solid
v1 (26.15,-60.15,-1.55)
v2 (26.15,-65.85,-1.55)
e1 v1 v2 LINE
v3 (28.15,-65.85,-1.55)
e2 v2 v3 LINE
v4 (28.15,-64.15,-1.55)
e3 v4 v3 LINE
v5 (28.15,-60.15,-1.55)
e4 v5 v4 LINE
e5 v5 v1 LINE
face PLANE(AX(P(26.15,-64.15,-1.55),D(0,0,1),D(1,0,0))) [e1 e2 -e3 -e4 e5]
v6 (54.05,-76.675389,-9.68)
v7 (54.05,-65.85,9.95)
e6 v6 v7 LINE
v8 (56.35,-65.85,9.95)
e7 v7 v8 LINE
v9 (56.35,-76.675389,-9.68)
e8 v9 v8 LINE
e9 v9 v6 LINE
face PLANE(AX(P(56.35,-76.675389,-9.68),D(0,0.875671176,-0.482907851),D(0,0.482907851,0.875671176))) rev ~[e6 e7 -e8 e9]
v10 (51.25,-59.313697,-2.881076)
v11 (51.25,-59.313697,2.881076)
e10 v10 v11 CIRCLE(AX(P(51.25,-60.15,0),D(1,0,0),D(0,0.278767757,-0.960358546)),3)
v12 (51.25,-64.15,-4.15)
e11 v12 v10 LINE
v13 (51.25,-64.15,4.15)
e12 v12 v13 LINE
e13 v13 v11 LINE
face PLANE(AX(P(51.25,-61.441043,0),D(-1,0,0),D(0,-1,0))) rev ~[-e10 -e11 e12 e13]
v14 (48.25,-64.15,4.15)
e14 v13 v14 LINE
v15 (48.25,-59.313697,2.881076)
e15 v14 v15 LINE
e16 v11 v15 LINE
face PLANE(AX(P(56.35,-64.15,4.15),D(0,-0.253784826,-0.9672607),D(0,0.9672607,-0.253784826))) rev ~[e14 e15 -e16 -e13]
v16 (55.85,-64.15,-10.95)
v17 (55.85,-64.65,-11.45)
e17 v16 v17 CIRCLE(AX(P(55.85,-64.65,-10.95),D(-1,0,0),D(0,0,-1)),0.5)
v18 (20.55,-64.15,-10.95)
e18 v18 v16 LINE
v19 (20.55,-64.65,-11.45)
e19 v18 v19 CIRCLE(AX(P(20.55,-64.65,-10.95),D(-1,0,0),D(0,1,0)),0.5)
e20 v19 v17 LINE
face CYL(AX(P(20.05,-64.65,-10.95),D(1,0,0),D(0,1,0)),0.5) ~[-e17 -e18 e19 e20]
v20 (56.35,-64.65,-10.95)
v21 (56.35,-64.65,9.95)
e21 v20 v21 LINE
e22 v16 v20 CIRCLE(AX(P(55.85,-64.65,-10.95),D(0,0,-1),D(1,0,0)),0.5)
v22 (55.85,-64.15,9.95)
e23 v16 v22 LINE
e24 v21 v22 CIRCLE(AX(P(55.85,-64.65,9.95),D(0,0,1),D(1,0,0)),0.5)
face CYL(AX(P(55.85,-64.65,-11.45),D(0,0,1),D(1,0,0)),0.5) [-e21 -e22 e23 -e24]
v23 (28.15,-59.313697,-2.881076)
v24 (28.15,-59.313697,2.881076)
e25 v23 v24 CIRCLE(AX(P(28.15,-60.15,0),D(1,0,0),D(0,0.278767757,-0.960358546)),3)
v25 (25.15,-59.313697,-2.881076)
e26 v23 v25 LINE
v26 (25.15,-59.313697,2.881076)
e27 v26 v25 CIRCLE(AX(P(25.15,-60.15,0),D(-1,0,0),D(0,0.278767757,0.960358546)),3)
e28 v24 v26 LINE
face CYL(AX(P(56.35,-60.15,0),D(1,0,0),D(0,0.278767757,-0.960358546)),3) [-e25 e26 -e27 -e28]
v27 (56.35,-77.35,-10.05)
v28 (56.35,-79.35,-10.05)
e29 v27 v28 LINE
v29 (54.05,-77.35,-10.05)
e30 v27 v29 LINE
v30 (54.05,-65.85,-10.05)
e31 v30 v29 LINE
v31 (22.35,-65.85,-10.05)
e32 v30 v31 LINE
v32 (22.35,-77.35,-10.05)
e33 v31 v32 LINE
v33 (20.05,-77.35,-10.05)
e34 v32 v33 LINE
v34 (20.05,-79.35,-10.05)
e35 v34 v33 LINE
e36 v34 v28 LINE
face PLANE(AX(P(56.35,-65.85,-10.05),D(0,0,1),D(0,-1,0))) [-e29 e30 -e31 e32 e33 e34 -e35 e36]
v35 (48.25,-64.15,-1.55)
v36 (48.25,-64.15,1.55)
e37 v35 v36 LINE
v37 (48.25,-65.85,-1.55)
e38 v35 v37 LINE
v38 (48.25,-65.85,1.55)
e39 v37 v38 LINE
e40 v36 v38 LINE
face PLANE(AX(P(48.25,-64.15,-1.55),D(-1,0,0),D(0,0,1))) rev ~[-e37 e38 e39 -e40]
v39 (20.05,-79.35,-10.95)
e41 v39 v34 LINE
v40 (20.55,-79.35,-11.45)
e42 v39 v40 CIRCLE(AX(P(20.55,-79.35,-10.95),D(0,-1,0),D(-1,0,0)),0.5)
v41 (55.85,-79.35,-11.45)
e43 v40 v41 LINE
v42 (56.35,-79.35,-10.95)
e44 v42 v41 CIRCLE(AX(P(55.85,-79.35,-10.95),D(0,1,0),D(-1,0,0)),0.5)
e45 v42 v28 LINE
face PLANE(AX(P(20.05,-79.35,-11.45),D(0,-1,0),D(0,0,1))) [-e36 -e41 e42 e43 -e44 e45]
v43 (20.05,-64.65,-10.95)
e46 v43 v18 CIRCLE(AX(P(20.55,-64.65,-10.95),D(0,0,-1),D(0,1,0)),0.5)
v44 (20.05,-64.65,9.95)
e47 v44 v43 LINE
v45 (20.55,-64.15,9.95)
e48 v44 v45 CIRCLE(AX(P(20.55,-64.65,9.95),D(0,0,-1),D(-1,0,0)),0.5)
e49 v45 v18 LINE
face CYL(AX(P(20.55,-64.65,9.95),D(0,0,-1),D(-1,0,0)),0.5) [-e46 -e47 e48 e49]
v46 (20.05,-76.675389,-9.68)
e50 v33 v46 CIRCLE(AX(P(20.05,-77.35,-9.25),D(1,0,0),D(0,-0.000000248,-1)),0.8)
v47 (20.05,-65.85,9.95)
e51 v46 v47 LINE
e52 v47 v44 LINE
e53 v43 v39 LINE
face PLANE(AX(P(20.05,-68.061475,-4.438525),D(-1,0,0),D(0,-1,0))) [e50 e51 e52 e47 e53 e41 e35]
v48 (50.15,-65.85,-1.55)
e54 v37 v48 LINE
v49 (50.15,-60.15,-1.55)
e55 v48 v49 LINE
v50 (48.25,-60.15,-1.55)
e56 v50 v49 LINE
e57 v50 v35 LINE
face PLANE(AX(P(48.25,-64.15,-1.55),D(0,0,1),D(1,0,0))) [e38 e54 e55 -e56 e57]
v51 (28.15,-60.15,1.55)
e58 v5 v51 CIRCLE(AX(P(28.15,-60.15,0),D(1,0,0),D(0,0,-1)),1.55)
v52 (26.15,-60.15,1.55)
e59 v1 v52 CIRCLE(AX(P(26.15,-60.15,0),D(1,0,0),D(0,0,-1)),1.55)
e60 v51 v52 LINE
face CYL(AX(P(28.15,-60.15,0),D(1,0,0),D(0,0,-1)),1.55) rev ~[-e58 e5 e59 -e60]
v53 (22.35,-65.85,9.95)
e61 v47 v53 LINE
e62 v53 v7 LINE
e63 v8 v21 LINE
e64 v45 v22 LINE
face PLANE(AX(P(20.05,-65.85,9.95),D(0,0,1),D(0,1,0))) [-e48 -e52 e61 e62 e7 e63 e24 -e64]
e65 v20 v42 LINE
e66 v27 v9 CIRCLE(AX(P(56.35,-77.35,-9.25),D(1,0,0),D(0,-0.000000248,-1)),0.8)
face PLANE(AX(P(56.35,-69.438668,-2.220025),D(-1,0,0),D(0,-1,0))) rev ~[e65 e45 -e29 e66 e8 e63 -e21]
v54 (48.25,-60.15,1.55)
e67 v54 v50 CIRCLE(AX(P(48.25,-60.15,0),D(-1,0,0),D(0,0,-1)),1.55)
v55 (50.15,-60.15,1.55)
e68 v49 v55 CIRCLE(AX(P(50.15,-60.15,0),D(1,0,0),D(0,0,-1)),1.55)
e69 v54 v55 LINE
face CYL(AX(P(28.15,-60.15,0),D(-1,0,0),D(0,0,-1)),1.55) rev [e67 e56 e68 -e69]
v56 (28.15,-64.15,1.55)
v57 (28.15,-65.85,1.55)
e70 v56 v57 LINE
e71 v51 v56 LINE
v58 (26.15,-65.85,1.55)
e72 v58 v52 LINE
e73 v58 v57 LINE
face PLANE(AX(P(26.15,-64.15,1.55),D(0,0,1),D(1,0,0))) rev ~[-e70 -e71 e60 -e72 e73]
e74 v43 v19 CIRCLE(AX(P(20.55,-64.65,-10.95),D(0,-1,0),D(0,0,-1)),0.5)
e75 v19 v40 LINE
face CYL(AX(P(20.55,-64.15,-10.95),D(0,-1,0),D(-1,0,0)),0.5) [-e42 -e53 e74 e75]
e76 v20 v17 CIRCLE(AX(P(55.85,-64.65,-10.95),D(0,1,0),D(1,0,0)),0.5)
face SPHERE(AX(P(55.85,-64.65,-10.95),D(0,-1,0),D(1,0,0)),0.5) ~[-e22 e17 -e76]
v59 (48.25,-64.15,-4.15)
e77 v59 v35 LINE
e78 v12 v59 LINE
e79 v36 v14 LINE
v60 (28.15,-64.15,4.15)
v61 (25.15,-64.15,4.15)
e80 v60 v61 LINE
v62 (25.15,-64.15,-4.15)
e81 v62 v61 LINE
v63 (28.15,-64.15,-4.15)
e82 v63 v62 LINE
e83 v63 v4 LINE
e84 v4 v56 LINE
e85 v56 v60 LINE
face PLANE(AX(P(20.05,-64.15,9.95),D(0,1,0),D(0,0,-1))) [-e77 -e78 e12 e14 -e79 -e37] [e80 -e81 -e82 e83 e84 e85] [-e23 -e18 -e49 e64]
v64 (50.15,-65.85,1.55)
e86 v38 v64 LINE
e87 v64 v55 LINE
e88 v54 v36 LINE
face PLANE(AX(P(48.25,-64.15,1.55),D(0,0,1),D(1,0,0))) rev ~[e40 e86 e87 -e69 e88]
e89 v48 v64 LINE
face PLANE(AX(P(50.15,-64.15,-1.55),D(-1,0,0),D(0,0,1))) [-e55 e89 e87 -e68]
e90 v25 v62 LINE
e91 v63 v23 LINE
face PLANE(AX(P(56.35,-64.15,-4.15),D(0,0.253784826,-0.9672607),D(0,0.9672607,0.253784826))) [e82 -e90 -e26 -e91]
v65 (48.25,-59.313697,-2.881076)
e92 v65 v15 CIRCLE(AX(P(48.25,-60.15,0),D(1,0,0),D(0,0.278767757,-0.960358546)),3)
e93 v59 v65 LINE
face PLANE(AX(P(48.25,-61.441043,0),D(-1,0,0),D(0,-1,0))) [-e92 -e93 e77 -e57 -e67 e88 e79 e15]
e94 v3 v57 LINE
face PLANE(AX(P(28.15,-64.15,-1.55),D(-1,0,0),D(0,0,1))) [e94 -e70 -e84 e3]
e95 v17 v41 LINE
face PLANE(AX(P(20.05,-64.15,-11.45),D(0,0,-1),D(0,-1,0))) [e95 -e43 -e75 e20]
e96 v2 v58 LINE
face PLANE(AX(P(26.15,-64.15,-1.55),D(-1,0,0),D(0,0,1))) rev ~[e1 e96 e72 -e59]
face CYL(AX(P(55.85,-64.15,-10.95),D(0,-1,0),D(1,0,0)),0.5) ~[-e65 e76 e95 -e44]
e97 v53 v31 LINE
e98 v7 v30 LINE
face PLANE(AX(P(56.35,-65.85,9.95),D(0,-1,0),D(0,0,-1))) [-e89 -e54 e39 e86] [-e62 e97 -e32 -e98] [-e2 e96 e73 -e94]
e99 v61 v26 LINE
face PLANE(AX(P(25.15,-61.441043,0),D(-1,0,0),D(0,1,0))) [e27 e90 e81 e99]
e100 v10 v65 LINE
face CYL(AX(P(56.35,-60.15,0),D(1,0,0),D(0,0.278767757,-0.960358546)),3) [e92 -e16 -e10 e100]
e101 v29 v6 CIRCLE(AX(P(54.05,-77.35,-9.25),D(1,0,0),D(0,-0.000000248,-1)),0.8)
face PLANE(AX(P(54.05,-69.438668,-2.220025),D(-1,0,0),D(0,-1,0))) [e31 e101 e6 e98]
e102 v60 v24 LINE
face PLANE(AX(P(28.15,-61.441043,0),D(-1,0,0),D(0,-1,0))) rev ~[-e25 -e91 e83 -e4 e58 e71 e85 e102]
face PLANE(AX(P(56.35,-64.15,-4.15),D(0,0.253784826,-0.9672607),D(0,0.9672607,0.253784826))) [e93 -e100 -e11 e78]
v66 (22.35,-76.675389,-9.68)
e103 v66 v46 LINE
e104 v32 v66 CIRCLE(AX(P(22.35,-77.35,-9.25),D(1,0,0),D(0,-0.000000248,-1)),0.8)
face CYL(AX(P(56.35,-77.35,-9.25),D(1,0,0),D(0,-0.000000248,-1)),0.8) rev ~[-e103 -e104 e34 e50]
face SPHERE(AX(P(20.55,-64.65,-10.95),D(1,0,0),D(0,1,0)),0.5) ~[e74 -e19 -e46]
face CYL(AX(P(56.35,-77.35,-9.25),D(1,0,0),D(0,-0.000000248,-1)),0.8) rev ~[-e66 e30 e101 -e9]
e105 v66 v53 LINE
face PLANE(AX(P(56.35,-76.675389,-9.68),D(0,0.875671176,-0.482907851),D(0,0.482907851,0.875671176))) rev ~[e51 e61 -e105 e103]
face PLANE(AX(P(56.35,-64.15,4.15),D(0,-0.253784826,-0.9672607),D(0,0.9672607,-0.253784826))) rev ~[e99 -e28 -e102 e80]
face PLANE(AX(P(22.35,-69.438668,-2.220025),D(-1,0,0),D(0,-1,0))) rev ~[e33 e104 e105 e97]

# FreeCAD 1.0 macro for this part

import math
import FreeCAD as App
import Part
import Sketcher
Q = App.Units.Quantity


def edges_at(feature, points):
    """Names of the edges that pass closest to the given points."""
    edges = feature.Shape.Edges
    near = lambda p: min(range(len(edges)), key=lambda i: edges[i].distToShape(Part.Vertex(*p))[0])
    return sorted({f"Edge{near(p) + 1}" for p in points})


def add_polygon(sketch, points):
    """Adds a closed chain of lines whose ends are joined by coincident constraints."""
    first, n = sketch.GeometryCount, len(points)
    for a, b in zip(points, points[1:] + points[:1]):
        sketch.addGeometry(Part.LineSegment(App.Vector(*a, 0), App.Vector(*b, 0)), False)
    for i in range(n):
        sketch.addConstraint(Sketcher.Constraint("Coincident", first + i, 2, first + (i + 1) % n, 1))

doc = App.newDocument("Part")
params = doc.addObject("Spreadsheet::Sheet", "Params")
for row, (alias, value) in enumerate([
    ("sketch1_height", "20 mm"),
    ("sketch1_width", "15.2 mm"),
    ("sketch1_width2", "1.7 mm"),
    ("sketch1_height2", "1.4 mm"),
    ("pad1_length", "36.3 mm"),
    ("sketch2_radius", "3 mm"),
    ("sketch2_length", "4.999999 mm"),
    ("sketch2_height", "8.3 mm"),
    ("pad2_length", "36.3 mm"),
    ("sketch3_radius", "3 mm"),
    ("sketch3_length", "4.999999 mm"),
    ("sketch3_height", "8.3 mm"),
    ("pocket1_length", "28.2 mm"),
    ("sketch4_radius", "3 mm"),
    ("sketch4_length", "4.999999 mm"),
    ("sketch4_height", "8.3 mm"),
    ("pad3_length", "8.1 mm"),
    ("sketch5_radius", "3 mm"),
    ("sketch5_length", "4.999999 mm"),
    ("sketch5_height", "8.3 mm"),
    ("pocket2_length", "5.1 mm"),
    ("sketch6_radius", "3 mm"),
    ("sketch6_length", "4.999999 mm"),
    ("sketch6_height", "8.3 mm"),
    ("pocket3_length", "5.1 mm"),
    ("sketch7_width", "4 mm"),
    ("sketch7_radius", "1.55 mm"),
    ("pocket4_length", "2 mm"),
    ("sketch8_width", "4 mm"),
    ("sketch8_radius", "1.55 mm"),
    ("pocket5_length", "22 mm"),
    ("sketch9_height", "2 mm"),
    ("sketch9_width", "3.1 mm"),
    ("sketch9_height2", "1.9 mm"),
    ("pocket6_length", "1.7 mm"),
    ("sketch10_radius", "0.8 mm"),
    ("sketch10_height", "20 mm"),
    ("sketch10_width", "11.5 mm"),
    ("pad4_length", "36.3 mm"),
    ("sketch11_radius", "0.8 mm"),
    ("sketch11_height", "20 mm"),
    ("sketch11_width", "11.5 mm"),
    ("pocket7_length", "34 mm"),
    ("sketch12_radius", "0.8 mm"),
    ("sketch12_height", "20 mm"),
    ("sketch12_width", "11.5 mm"),
    ("pad5_length", "2.3 mm"),
    ("fillet_radius", "0.5 mm"),
], start=1):
    params.set(f"A{row}", alias)
    params.set(f"B{row}", "=" + value)
    params.setAlias(f"B{row}", alias)

body = doc.addObject("PartDesign::Body", "Body")

sketch1 = body.newObject("Sketcher::SketchObject", "Sketch")
sketch1.AttachmentSupport = (doc.getObject("XY_Plane"), [""])
sketch1.MapMode = "FlatFace"
add_polygon(sketch1, [(0, 1.4), (0, 0), (15.2, 0), (15.2, 21.4), (13.5, 21.4), (13.5, 1.4)])
sketch1.addConstraint([
    Sketcher.Constraint("Vertical", 0),
    Sketcher.Constraint("Horizontal", 1),
    Sketcher.Constraint("Vertical", 2),
    Sketcher.Constraint("Horizontal", 3),
    Sketcher.Constraint("Vertical", 4),
    Sketcher.Constraint("Horizontal", 5),
    Sketcher.Constraint("Coincident", 0, 2, -1, 1),
    Sketcher.Constraint("DistanceY", 4, 2, 4, 1, Q("20 mm")),
    Sketcher.Constraint("DistanceX", 1, 1, 1, 2, Q("15.2 mm")),
    Sketcher.Constraint("DistanceX", 3, 2, 3, 1, Q("1.7 mm")),
    Sketcher.Constraint("DistanceY", 0, 2, 0, 1, Q("1.4 mm")),
])
sketch1.setExpression("Constraints[13]", "Params.sketch1_height")
sketch1.setExpression("Constraints[14]", "Params.sketch1_width")
sketch1.setExpression("Constraints[15]", "Params.sketch1_width2")
sketch1.setExpression("Constraints[16]", "Params.sketch1_height2")
pad1 = body.newObject("PartDesign::Pad", "Pad")
pad1.Profile = sketch1
pad1.setExpression("Length", "Params.pad1_length")

sketch2 = body.newObject("Sketcher::SketchObject", "Sketch001")
sketch2.AttachmentSupport = (doc.getObject("XY_Plane"), [""])
sketch2.MapMode = "FlatFace"
sketch2.AttachmentOffset = App.Placement(App.Vector(0, 0, 36.3), App.Rotation())
sketch2.addGeometry([
    Part.LineSegment(App.Vector(20, 14.3, 0), App.Vector(15.2, 15.6, 0)),
    Part.LineSegment(App.Vector(15.2, 15.6, 0), App.Vector(15.2, 7.3, 0)),
    Part.LineSegment(App.Vector(15.2, 7.3, 0), App.Vector(20, 8.6, 0)),
    Part.ArcOfCircle(Part.Circle(App.Vector(19.2, 11.4, 0), App.Vector(0, 0, 1), 3), math.radians(-74), math.radians(74)),
], False)
sketch2.addConstraint([
    Sketcher.Constraint("Coincident", 0, 2, 1, 1),
    Sketcher.Constraint("Coincident", 1, 2, 2, 1),
    Sketcher.Constraint("Coincident", 2, 2, 3, 1),
    Sketcher.Constraint("Coincident", 3, 2, 0, 1),
    Sketcher.Constraint("Vertical", 1),
    Sketcher.Constraint("Vertical", 2, 2, 3, 2),
    Sketcher.Constraint("Equal", 0, 2),
    Sketcher.Constraint("Radius", 3, Q("3 mm")),
    Sketcher.Constraint("Distance", 0, Q("4.999999 mm")),
    Sketcher.Constraint("DistanceY", 1, 2, 1, 1, Q("8.3 mm")),
    Sketcher.Constraint("DistanceX", 0, 2, 3, 3, Q("4 mm")),
    Sketcher.Constraint("DistanceX", -1, 1, 3, 3, Q("19.2 mm")),
    Sketcher.Constraint("DistanceY", -1, 1, 0, 2, Q("15.6 mm")),
])
sketch2.setExpression("Constraints[7]", "Params.sketch2_radius")
sketch2.setExpression("Constraints[8]", "Params.sketch2_length")
sketch2.setExpression("Constraints[9]", "Params.sketch2_height")
pad2 = body.newObject("PartDesign::Pad", "Pad001")
pad2.Profile = sketch2
pad2.setExpression("Length", "Params.pad2_length")
pad2.Reversed = True

sketch3 = body.newObject("Sketcher::SketchObject", "Sketch002")
sketch3.AttachmentSupport = (doc.getObject("XY_Plane"), [""])
sketch3.MapMode = "FlatFace"
sketch3.AttachmentOffset = App.Placement(App.Vector(0, 0, 36.3), App.Rotation())
sketch3.addGeometry([
    Part.LineSegment(App.Vector(20, 14.3, 0), App.Vector(15.2, 15.6, 0)),
    Part.LineSegment(App.Vector(15.2, 15.6, 0), App.Vector(15.2, 7.3, 0)),
    Part.LineSegment(App.Vector(15.2, 7.3, 0), App.Vector(20, 8.6, 0)),
    Part.ArcOfCircle(Part.Circle(App.Vector(19.2, 11.4, 0), App.Vector(0, 0, 1), 3), math.radians(-74), math.radians(74)),
], False)
sketch3.addConstraint([
    Sketcher.Constraint("Coincident", 0, 2, 1, 1),
    Sketcher.Constraint("Coincident", 1, 2, 2, 1),
    Sketcher.Constraint("Coincident", 2, 2, 3, 1),
    Sketcher.Constraint("Coincident", 3, 2, 0, 1),
    Sketcher.Constraint("Vertical", 1),
    Sketcher.Constraint("Vertical", 2, 2, 3, 2),
    Sketcher.Constraint("Equal", 0, 2),
    Sketcher.Constraint("Radius", 3, Q("3 mm")),
    Sketcher.Constraint("Distance", 0, Q("4.999999 mm")),
    Sketcher.Constraint("DistanceY", 1, 2, 1, 1, Q("8.3 mm")),
    Sketcher.Constraint("DistanceX", 0, 2, 3, 3, Q("4 mm")),
    Sketcher.Constraint("DistanceX", -1, 1, 3, 3, Q("19.2 mm")),
    Sketcher.Constraint("DistanceY", -1, 1, 0, 2, Q("15.6 mm")),
])
sketch3.setExpression("Constraints[7]", "Params.sketch3_radius")
sketch3.setExpression("Constraints[8]", "Params.sketch3_length")
sketch3.setExpression("Constraints[9]", "Params.sketch3_height")
pocket1 = body.newObject("PartDesign::Pocket", "Pocket")
pocket1.Profile = sketch3
pocket1.setExpression("Length", "Params.pocket1_length")

sketch4 = body.newObject("Sketcher::SketchObject", "Sketch003")
sketch4.AttachmentSupport = (doc.getObject("XY_Plane"), [""])
sketch4.MapMode = "FlatFace"
sketch4.AttachmentOffset = App.Placement(App.Vector(0, 0, 36.3), App.Rotation())
sketch4.addGeometry([
    Part.LineSegment(App.Vector(20, 14.3, 0), App.Vector(15.2, 15.6, 0)),
    Part.LineSegment(App.Vector(15.2, 15.6, 0), App.Vector(15.2, 7.3, 0)),
    Part.LineSegment(App.Vector(15.2, 7.3, 0), App.Vector(20, 8.6, 0)),
    Part.ArcOfCircle(Part.Circle(App.Vector(19.2, 11.4, 0), App.Vector(0, 0, 1), 3), math.radians(-74), math.radians(74)),
], False)
sketch4.addConstraint([
    Sketcher.Constraint("Coincident", 0, 2, 1, 1),
    Sketcher.Constraint("Coincident", 1, 2, 2, 1),
    Sketcher.Constraint("Coincident", 2, 2, 3, 1),
    Sketcher.Constraint("Coincident", 3, 2, 0, 1),
    Sketcher.Constraint("Vertical", 1),
    Sketcher.Constraint("Vertical", 2, 2, 3, 2),
    Sketcher.Constraint("Equal", 0, 2),
    Sketcher.Constraint("Radius", 3, Q("3 mm")),
    Sketcher.Constraint("Distance", 0, Q("4.999999 mm")),
    Sketcher.Constraint("DistanceY", 1, 2, 1, 1, Q("8.3 mm")),
    Sketcher.Constraint("DistanceX", 0, 2, 3, 3, Q("4 mm")),
    Sketcher.Constraint("DistanceX", -1, 1, 3, 3, Q("19.2 mm")),
    Sketcher.Constraint("DistanceY", -1, 1, 0, 2, Q("15.6 mm")),
])
sketch4.setExpression("Constraints[7]", "Params.sketch4_radius")
sketch4.setExpression("Constraints[8]", "Params.sketch4_length")
sketch4.setExpression("Constraints[9]", "Params.sketch4_height")
pad3 = body.newObject("PartDesign::Pad", "Pad002")
pad3.Profile = sketch4
pad3.setExpression("Length", "Params.pad3_length")
pad3.Reversed = True

sketch5 = body.newObject("Sketcher::SketchObject", "Sketch004")
sketch5.AttachmentSupport = (doc.getObject("XY_Plane"), [""])
sketch5.MapMode = "FlatFace"
sketch5.AttachmentOffset = App.Placement(App.Vector(0, 0, 36.3), App.Rotation())
sketch5.addGeometry([
    Part.LineSegment(App.Vector(20, 14.3, 0), App.Vector(15.2, 15.6, 0)),
    Part.LineSegment(App.Vector(15.2, 15.6, 0), App.Vector(15.2, 7.3, 0)),
    Part.LineSegment(App.Vector(15.2, 7.3, 0), App.Vector(20, 8.6, 0)),
    Part.ArcOfCircle(Part.Circle(App.Vector(19.2, 11.4, 0), App.Vector(0, 0, 1), 3), math.radians(-74), math.radians(74)),
], False)
sketch5.addConstraint([
    Sketcher.Constraint("Coincident", 0, 2, 1, 1),
    Sketcher.Constraint("Coincident", 1, 2, 2, 1),
    Sketcher.Constraint("Coincident", 2, 2, 3, 1),
    Sketcher.Constraint("Coincident", 3, 2, 0, 1),
    Sketcher.Constraint("Vertical", 1),
    Sketcher.Constraint("Vertical", 2, 2, 3, 2),
    Sketcher.Constraint("Equal", 0, 2),
    Sketcher.Constraint("Radius", 3, Q("3 mm")),
    Sketcher.Constraint("Distance", 0, Q("4.999999 mm")),
    Sketcher.Constraint("DistanceY", 1, 2, 1, 1, Q("8.3 mm")),
    Sketcher.Constraint("DistanceX", 0, 2, 3, 3, Q("4 mm")),
    Sketcher.Constraint("DistanceX", -1, 1, 3, 3, Q("19.2 mm")),
    Sketcher.Constraint("DistanceY", -1, 1, 0, 2, Q("15.6 mm")),
])
sketch5.setExpression("Constraints[7]", "Params.sketch5_radius")
sketch5.setExpression("Constraints[8]", "Params.sketch5_length")
sketch5.setExpression("Constraints[9]", "Params.sketch5_height")
pocket2 = body.newObject("PartDesign::Pocket", "Pocket001")
pocket2.Profile = sketch5
pocket2.setExpression("Length", "Params.pocket2_length")

sketch6 = body.newObject("Sketcher::SketchObject", "Sketch005")
sketch6.AttachmentSupport = (doc.getObject("XY_Plane"), [""])
sketch6.MapMode = "FlatFace"
sketch6.addGeometry([
    Part.LineSegment(App.Vector(20, 8.6, 0), App.Vector(15.2, 7.3, 0)),
    Part.LineSegment(App.Vector(15.2, 7.3, 0), App.Vector(15.2, 15.6, 0)),
    Part.LineSegment(App.Vector(15.2, 15.6, 0), App.Vector(20, 14.3, 0)),
    Part.ArcOfCircle(Part.Circle(App.Vector(19.2, 11.4, 0), App.Vector(0, 0, 1), 3), math.radians(-74), math.radians(74)),
], False)
sketch6.addConstraint([
    Sketcher.Constraint("Coincident", 0, 2, 1, 1),
    Sketcher.Constraint("Coincident", 1, 2, 2, 1),
    Sketcher.Constraint("Coincident", 2, 2, 3, 2),
    Sketcher.Constraint("Coincident", 3, 1, 0, 1),
    Sketcher.Constraint("Vertical", 1),
    Sketcher.Constraint("Vertical", 2, 2, 3, 1),
    Sketcher.Constraint("Equal", 0, 2),
    Sketcher.Constraint("Radius", 3, Q("3 mm")),
    Sketcher.Constraint("Distance", 0, Q("4.999999 mm")),
    Sketcher.Constraint("DistanceY", 1, 1, 1, 2, Q("8.3 mm")),
    Sketcher.Constraint("DistanceX", 0, 2, 3, 3, Q("4 mm")),
    Sketcher.Constraint("DistanceX", -1, 1, 3, 3, Q("19.2 mm")),
    Sketcher.Constraint("DistanceY", -1, 1, 0, 2, Q("7.3 mm")),
])
sketch6.setExpression("Constraints[7]", "Params.sketch6_radius")
sketch6.setExpression("Constraints[8]", "Params.sketch6_length")
sketch6.setExpression("Constraints[9]", "Params.sketch6_height")
pocket3 = body.newObject("PartDesign::Pocket", "Pocket002")
pocket3.Profile = sketch6
pocket3.setExpression("Length", "Params.pocket3_length")
pocket3.Reversed = True

sketch7 = body.newObject("Sketcher::SketchObject", "Sketch006")
sketch7.AttachmentSupport = (doc.getObject("XY_Plane"), [""])
sketch7.MapMode = "FlatFace"
sketch7.AttachmentOffset = App.Placement(App.Vector(0, 0, 8.1), App.Rotation())
sketch7.addGeometry([
    Part.ArcOfCircle(Part.Circle(App.Vector(19.2, 11.4, 0), App.Vector(0, 0, 1), 1.6), math.radians(-90), math.radians(90)),
    Part.LineSegment(App.Vector(19.2, 13, 0), App.Vector(15.2, 13, 0)),
    Part.LineSegment(App.Vector(15.2, 13, 0), App.Vector(15.2, 9.9, 0)),
    Part.LineSegment(App.Vector(15.2, 9.9, 0), App.Vector(19.2, 9.9, 0)),
], False)
sketch7.addConstraint([
    Sketcher.Constraint("Tangent", 0, 2, 1, 1),
    Sketcher.Constraint("Coincident", 1, 2, 2, 1),
    Sketcher.Constraint("Coincident", 2, 2, 3, 1),
    Sketcher.Constraint("Tangent", 3, 2, 0, 1),
    Sketcher.Constraint("Horizontal", 1),
    Sketcher.Constraint("Vertical", 2),
    Sketcher.Constraint("Horizontal", 3),
    Sketcher.Constraint("DistanceX", 1, 2, 1, 1, Q("4 mm")),
    Sketcher.Constraint("Radius", 0, Q("1.55 mm")),
    Sketcher.Constraint("DistanceY", -1, 1, 0, 2, Q("13 mm")),
    Sketcher.Constraint("DistanceX", -1, 1, 0, 3, Q("19.2 mm")),
])
sketch7.setExpression("Constraints[7]", "Params.sketch7_width")
sketch7.setExpression("Constraints[8]", "Params.sketch7_radius")
pocket4 = body.newObject("PartDesign::Pocket", "Pocket003")
pocket4.Profile = sketch7
pocket4.setExpression("Length", "Params.pocket4_length")

sketch8 = body.newObject("Sketcher::SketchObject", "Sketch007")
sketch8.AttachmentSupport = (doc.getObject("XY_Plane"), [""])
sketch8.MapMode = "FlatFace"
sketch8.AttachmentOffset = App.Placement(App.Vector(0, 0, 8.1), App.Rotation())
sketch8.addGeometry([
    Part.ArcOfCircle(Part.Circle(App.Vector(19.2, 11.4, 0), App.Vector(0, 0, 1), 1.6), math.radians(-90), math.radians(90)),
    Part.LineSegment(App.Vector(19.2, 13, 0), App.Vector(15.2, 13, 0)),
    Part.LineSegment(App.Vector(15.2, 13, 0), App.Vector(15.2, 9.9, 0)),
    Part.LineSegment(App.Vector(15.2, 9.9, 0), App.Vector(19.2, 9.9, 0)),
], False)
sketch8.addConstraint([
    Sketcher.Constraint("Tangent", 0, 2, 1, 1),
    Sketcher.Constraint("Coincident", 1, 2, 2, 1),
    Sketcher.Constraint("Coincident", 2, 2, 3, 1),
    Sketcher.Constraint("Tangent", 3, 2, 0, 1),
    Sketcher.Constraint("Horizontal", 1),
    Sketcher.Constraint("Vertical", 2),
    Sketcher.Constraint("Horizontal", 3),
    Sketcher.Constraint("DistanceX", 1, 2, 1, 1, Q("4 mm")),
    Sketcher.Constraint("Radius", 0, Q("1.55 mm")),
    Sketcher.Constraint("DistanceY", -1, 1, 0, 2, Q("13 mm")),
    Sketcher.Constraint("DistanceX", -1, 1, 0, 3, Q("19.2 mm")),
])
sketch8.setExpression("Constraints[7]", "Params.sketch8_width")
sketch8.setExpression("Constraints[8]", "Params.sketch8_radius")
pocket5 = body.newObject("PartDesign::Pocket", "Pocket004")
pocket5.Profile = sketch8
pocket5.setExpression("Length", "Params.pocket5_length")
pocket5.Reversed = True

sketch9 = body.newObject("Sketcher::SketchObject", "Sketch008")
sketch9.AttachmentSupport = (doc.getObject("YZ_Plane"), [""])
sketch9.MapMode = "FlatFace"
sketch9.AttachmentOffset = App.Placement(App.Vector(0, 0, 15.2), App.Rotation())
add_polygon(sketch9, [(9.9, 30.1), (9.9, 28.2), (13, 28.2), (13, 30.1)])
add_polygon(sketch9, [(9.9, 8.1), (9.9, 6.1), (13, 6.1), (13, 8.1)])
sketch9.addConstraint([
    Sketcher.Constraint("Vertical", 0),
    Sketcher.Constraint("Horizontal", 1),
    Sketcher.Constraint("Vertical", 2),
    Sketcher.Constraint("Horizontal", 3),
    Sketcher.Constraint("Vertical", 4),
    Sketcher.Constraint("Horizontal", 5),
    Sketcher.Constraint("Vertical", 6),
    Sketcher.Constraint("Horizontal", 7),
    Sketcher.Constraint("Vertical", 3, 2, 4, 2),
    Sketcher.Constraint("Vertical", 2, 2, 5, 2),
    Sketcher.Constraint("DistanceY", 4, 2, 4, 1, Q("2 mm")),
    Sketcher.Constraint("DistanceX", 1, 1, 1, 2, Q("3.1 mm")),
    Sketcher.Constraint("DistanceY", 0, 2, 0, 1, Q("1.9 mm")),
    Sketcher.Constraint("DistanceX", -1, 1, 1, 2, Q("13 mm")),
    Sketcher.Constraint("DistanceY", 4, 2, 3, 2, Q("24 mm")),
    Sketcher.Constraint("DistanceY", -1, 1, 0, 2, Q("28.2 mm")),
])
sketch9.setExpression("Constraints[18]", "Params.sketch9_height")
sketch9.setExpression("Constraints[19]", "Params.sketch9_width")
sketch9.setExpression("Constraints[20]", "Params.sketch9_height2")
pocket6 = body.newObject("PartDesign::Pocket", "Pocket005")
pocket6.Profile = sketch9
pocket6.setExpression("Length", "Params.pocket6_length")

sketch10 = body.newObject("Sketcher::SketchObject", "Sketch009")
sketch10.AttachmentSupport = (doc.getObject("XY_Plane"), [""])
sketch10.MapMode = "FlatFace"
sketch10.AttachmentOffset = App.Placement(App.Vector(0, 0, 36.3), App.Rotation())
sketch10.addGeometry([
    Part.LineSegment(App.Vector(13.5, 1.4, 0), App.Vector(13.5, 21.4, 0)),
    Part.LineSegment(App.Vector(13.5, 21.4, 0), App.Vector(2.7, 1.8, 0)),
    Part.ArcOfCircle(Part.Circle(App.Vector(2, 2.2, 0), App.Vector(0, 0, 1), 0.8), math.radians(-90), math.radians(-33)),
    Part.LineSegment(App.Vector(2, 1.4, 0), App.Vector(13.5, 1.4, 0)),
], False)
sketch10.addConstraint([
    Sketcher.Constraint("Coincident", 0, 2, 1, 1),
    Sketcher.Constraint("Coincident", 1, 2, 2, 2),
    Sketcher.Constraint("Tangent", 2, 1, 3, 1),
    Sketcher.Constraint("Coincident", 3, 2, 0, 1),
    Sketcher.Constraint("Vertical", 0),
    Sketcher.Constraint("Horizontal", 3),
    Sketcher.Constraint("Radius", 2, Q("0.8 mm")),
    Sketcher.Constraint("DistanceY", 0, 1, 0, 2, Q("20 mm")),
    Sketcher.Constraint("DistanceX", 3, 1, 3, 2, Q("11.5 mm")),
    Sketcher.Constraint("DistanceX", -1, 1, 2, 3, Q("2 mm")),
    Sketcher.Constraint("DistanceY", -1, 1, 2, 3, Q("2.2 mm")),
    Sketcher.Constraint("DistanceY", -1, 1, 1, 2, Q("1.77 mm")),
])
sketch10.setExpression("Constraints[6]", "Params.sketch10_radius")
sketch10.setExpression("Constraints[7]", "Params.sketch10_height")
sketch10.setExpression("Constraints[8]", "Params.sketch10_width")
pad4 = body.newObject("PartDesign::Pad", "Pad003")
pad4.Profile = sketch10
pad4.setExpression("Length", "Params.pad4_length")
pad4.Reversed = True

sketch11 = body.newObject("Sketcher::SketchObject", "Sketch010")
sketch11.AttachmentSupport = (doc.getObject("XY_Plane"), [""])
sketch11.MapMode = "FlatFace"
sketch11.AttachmentOffset = App.Placement(App.Vector(0, 0, 36.3), App.Rotation())
sketch11.addGeometry([
    Part.LineSegment(App.Vector(13.5, 1.4, 0), App.Vector(13.5, 21.4, 0)),
    Part.LineSegment(App.Vector(13.5, 21.4, 0), App.Vector(2.7, 1.8, 0)),
    Part.ArcOfCircle(Part.Circle(App.Vector(2, 2.2, 0), App.Vector(0, 0, 1), 0.8), math.radians(-90), math.radians(-33)),
    Part.LineSegment(App.Vector(2, 1.4, 0), App.Vector(13.5, 1.4, 0)),
], False)
sketch11.addConstraint([
    Sketcher.Constraint("Coincident", 0, 2, 1, 1),
    Sketcher.Constraint("Coincident", 1, 2, 2, 2),
    Sketcher.Constraint("Tangent", 2, 1, 3, 1),
    Sketcher.Constraint("Coincident", 3, 2, 0, 1),
    Sketcher.Constraint("Vertical", 0),
    Sketcher.Constraint("Horizontal", 3),
    Sketcher.Constraint("Radius", 2, Q("0.8 mm")),
    Sketcher.Constraint("DistanceY", 0, 1, 0, 2, Q("20 mm")),
    Sketcher.Constraint("DistanceX", 3, 1, 3, 2, Q("11.5 mm")),
    Sketcher.Constraint("DistanceX", -1, 1, 2, 3, Q("2 mm")),
    Sketcher.Constraint("DistanceY", -1, 1, 2, 3, Q("2.2 mm")),
    Sketcher.Constraint("DistanceY", -1, 1, 1, 2, Q("1.77 mm")),
])
sketch11.setExpression("Constraints[6]", "Params.sketch11_radius")
sketch11.setExpression("Constraints[7]", "Params.sketch11_height")
sketch11.setExpression("Constraints[8]", "Params.sketch11_width")
pocket7 = body.newObject("PartDesign::Pocket", "Pocket006")
pocket7.Profile = sketch11
pocket7.setExpression("Length", "Params.pocket7_length")

sketch12 = body.newObject("Sketcher::SketchObject", "Sketch011")
sketch12.AttachmentSupport = (doc.getObject("XY_Plane"), [""])
sketch12.MapMode = "FlatFace"
sketch12.AttachmentOffset = App.Placement(App.Vector(0, 0, 36.3), App.Rotation())
sketch12.addGeometry([
    Part.LineSegment(App.Vector(13.5, 1.4, 0), App.Vector(13.5, 21.4, 0)),
    Part.LineSegment(App.Vector(13.5, 21.4, 0), App.Vector(2.7, 1.8, 0)),
    Part.ArcOfCircle(Part.Circle(App.Vector(2, 2.2, 0), App.Vector(0, 0, 1), 0.8), math.radians(-90), math.radians(-33)),
    Part.LineSegment(App.Vector(2, 1.4, 0), App.Vector(13.5, 1.4, 0)),
], False)
sketch12.addConstraint([
    Sketcher.Constraint("Coincident", 0, 2, 1, 1),
    Sketcher.Constraint("Coincident", 1, 2, 2, 2),
    Sketcher.Constraint("Tangent", 2, 1, 3, 1),
    Sketcher.Constraint("Coincident", 3, 2, 0, 1),
    Sketcher.Constraint("Vertical", 0),
    Sketcher.Constraint("Horizontal", 3),
    Sketcher.Constraint("Radius", 2, Q("0.8 mm")),
    Sketcher.Constraint("DistanceY", 0, 1, 0, 2, Q("20 mm")),
    Sketcher.Constraint("DistanceX", 3, 1, 3, 2, Q("11.5 mm")),
    Sketcher.Constraint("DistanceX", -1, 1, 2, 3, Q("2 mm")),
    Sketcher.Constraint("DistanceY", -1, 1, 2, 3, Q("2.2 mm")),
    Sketcher.Constraint("DistanceY", -1, 1, 1, 2, Q("1.77 mm")),
])
sketch12.setExpression("Constraints[6]", "Params.sketch12_radius")
sketch12.setExpression("Constraints[7]", "Params.sketch12_height")
sketch12.setExpression("Constraints[8]", "Params.sketch12_width")
pad5 = body.newObject("PartDesign::Pad", "Pad004")
pad5.Profile = sketch12
pad5.setExpression("Length", "Params.pad5_length")
pad5.Reversed = True
doc.recompute()

fillet = body.newObject("PartDesign::Fillet", "Fillet")
fillet.Base = (pad5, edges_at(pad5, [
    (7.6, 0, 36.3),
    (15.2, 10.7, 36.3),
    (15.2, 0, 18.15),
    (15.2, 10.7, 0),
    (7.6, 0, 0),
]))
fillet.setExpression("Radius", "Params.fillet_radius")
body2 = doc.addObject("PartDesign::Body", "Body001")
doc.recompute()

body.Placement = App.Placement(App.Vector(0, 0, 0), App.Rotation(App.Vector(1, 0, 0), 90))
boolean = body2.newObject("PartDesign::Boolean", "Boolean")
boolean.Type = "Fuse"
boolean.addObjects([body])
body3 = doc.addObject("PartDesign::Body", "Body002")
doc.recompute()

body2.Placement = App.Placement(App.Vector(20.05, -79.35, -11.45), App.Rotation(App.Vector(0, 0, 1), 90))
boolean2 = body3.newObject("PartDesign::Boolean", "Boolean001")
boolean2.Type = "Fuse"
boolean2.addObjects([body2])

doc.recompute()
